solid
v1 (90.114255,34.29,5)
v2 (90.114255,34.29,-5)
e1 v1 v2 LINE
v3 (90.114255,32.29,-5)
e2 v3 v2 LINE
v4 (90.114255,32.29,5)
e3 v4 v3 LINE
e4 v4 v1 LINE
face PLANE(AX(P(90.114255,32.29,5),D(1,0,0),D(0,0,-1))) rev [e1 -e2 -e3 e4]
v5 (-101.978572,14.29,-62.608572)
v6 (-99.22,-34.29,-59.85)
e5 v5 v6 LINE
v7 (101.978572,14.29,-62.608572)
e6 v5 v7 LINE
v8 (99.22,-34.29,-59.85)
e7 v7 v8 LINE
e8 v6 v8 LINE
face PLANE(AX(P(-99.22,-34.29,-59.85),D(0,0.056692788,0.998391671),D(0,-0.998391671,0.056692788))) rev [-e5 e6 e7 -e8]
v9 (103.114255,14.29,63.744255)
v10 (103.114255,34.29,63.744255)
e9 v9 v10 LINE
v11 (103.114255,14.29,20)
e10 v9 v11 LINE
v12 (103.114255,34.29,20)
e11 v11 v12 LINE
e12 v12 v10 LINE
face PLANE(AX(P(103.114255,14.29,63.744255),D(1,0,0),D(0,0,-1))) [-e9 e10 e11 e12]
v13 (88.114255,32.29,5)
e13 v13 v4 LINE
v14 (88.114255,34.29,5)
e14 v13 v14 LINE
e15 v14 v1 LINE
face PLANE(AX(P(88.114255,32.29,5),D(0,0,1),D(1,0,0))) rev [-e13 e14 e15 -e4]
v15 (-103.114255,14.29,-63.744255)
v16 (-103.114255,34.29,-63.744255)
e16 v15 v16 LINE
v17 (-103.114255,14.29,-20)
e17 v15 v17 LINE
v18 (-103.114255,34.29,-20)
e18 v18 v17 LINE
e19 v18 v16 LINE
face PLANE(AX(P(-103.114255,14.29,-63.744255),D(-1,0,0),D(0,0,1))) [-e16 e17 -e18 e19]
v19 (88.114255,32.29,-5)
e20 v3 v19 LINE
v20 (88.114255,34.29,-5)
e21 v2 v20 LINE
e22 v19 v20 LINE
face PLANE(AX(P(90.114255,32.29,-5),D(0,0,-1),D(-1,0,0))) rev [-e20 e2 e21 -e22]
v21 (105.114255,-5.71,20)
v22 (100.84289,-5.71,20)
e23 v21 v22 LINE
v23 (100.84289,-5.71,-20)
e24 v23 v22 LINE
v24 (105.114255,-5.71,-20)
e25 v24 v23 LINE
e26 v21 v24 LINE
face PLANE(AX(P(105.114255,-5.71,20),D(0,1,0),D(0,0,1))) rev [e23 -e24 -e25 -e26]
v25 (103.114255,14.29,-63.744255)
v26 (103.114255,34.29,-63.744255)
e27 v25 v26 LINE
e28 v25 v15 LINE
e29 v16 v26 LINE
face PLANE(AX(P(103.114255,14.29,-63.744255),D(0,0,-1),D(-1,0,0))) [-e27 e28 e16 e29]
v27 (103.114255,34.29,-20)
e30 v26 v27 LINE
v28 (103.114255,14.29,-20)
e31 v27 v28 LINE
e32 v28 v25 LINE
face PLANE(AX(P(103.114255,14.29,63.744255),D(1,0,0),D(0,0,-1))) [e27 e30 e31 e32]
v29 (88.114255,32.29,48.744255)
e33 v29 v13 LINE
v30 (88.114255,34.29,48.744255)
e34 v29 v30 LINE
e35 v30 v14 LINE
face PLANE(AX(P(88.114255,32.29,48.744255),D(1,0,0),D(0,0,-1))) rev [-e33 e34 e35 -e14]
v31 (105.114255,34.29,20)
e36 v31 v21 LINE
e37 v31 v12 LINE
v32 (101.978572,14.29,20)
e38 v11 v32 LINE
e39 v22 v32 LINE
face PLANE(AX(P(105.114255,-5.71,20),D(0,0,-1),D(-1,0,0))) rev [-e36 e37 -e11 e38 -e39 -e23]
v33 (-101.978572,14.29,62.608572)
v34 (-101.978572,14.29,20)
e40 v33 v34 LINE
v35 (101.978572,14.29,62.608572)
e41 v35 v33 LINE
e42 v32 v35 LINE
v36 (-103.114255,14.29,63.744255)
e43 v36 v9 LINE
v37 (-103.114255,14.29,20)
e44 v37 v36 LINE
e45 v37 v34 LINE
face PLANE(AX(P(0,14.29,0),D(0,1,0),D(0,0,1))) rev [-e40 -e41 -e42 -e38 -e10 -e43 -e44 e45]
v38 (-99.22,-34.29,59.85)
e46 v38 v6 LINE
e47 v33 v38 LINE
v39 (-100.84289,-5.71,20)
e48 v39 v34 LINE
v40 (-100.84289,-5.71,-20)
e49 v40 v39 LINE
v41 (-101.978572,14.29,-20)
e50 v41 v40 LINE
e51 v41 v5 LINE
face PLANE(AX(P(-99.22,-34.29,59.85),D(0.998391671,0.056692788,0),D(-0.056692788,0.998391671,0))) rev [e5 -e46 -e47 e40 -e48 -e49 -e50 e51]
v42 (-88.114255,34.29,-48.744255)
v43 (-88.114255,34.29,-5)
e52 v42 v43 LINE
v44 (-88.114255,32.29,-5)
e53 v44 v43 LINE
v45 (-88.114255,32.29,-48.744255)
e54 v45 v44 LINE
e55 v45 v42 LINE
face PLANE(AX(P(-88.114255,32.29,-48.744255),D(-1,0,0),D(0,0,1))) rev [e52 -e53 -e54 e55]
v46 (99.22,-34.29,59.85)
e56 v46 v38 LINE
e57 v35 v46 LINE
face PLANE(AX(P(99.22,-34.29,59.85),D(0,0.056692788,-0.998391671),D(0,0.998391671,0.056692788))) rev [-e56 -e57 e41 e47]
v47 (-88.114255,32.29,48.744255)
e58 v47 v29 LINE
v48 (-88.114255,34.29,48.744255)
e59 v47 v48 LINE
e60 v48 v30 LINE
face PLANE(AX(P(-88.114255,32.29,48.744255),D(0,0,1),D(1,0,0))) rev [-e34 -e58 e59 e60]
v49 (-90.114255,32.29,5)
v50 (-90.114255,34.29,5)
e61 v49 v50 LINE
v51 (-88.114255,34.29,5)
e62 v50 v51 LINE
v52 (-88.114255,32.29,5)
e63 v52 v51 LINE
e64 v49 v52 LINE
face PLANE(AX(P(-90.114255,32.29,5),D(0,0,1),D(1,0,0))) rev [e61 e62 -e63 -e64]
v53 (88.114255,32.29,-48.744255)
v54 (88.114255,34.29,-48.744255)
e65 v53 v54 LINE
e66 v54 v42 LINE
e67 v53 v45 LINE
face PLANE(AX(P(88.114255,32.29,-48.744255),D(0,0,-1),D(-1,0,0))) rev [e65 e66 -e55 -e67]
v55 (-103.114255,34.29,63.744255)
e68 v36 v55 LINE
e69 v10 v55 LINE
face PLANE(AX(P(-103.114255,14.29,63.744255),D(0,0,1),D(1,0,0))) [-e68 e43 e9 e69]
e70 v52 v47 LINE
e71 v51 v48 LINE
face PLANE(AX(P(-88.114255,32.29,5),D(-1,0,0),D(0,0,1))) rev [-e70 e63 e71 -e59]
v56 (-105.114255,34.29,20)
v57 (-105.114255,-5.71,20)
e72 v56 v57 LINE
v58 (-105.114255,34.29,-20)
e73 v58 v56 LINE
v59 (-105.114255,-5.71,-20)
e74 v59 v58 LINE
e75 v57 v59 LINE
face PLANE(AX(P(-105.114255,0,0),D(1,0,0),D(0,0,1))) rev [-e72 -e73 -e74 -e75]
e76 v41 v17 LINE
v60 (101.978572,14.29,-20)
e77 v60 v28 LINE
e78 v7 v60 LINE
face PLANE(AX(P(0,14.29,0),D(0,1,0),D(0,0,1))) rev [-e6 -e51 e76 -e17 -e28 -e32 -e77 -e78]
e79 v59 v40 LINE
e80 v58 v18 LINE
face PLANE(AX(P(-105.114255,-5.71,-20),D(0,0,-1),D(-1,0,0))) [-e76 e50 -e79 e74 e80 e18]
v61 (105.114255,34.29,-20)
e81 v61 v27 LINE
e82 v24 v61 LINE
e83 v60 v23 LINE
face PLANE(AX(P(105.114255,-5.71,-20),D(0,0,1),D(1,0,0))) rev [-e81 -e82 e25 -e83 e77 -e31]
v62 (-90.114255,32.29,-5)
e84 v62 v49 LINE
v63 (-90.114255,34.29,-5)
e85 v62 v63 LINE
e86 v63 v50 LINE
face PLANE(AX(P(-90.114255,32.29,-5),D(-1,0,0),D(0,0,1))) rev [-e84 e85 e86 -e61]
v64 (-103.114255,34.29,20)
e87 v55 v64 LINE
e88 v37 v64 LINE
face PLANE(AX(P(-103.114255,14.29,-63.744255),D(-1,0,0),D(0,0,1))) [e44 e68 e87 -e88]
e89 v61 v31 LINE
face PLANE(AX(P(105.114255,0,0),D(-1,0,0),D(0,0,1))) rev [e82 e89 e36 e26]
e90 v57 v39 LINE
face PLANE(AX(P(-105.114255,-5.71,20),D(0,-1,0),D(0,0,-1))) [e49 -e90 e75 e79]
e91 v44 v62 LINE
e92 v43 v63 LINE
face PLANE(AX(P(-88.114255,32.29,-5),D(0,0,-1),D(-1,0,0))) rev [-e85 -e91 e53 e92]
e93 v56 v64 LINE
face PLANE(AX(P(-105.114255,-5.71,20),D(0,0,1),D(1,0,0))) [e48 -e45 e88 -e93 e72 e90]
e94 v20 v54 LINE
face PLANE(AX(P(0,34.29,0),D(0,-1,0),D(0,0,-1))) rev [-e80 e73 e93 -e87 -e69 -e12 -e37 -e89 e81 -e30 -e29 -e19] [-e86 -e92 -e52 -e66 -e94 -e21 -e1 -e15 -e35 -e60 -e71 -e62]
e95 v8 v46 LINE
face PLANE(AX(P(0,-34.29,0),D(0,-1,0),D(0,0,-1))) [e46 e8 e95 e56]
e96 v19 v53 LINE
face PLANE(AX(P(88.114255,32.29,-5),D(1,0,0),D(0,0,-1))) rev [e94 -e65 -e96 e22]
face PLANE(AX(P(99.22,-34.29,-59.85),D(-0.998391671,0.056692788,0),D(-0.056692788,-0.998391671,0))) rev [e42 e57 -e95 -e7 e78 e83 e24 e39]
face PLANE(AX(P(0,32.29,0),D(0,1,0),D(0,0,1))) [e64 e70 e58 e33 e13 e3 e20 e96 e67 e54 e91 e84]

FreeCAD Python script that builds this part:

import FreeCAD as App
import Part
import Sketcher
from FreeCAD import Vector

doc = App.newDocument("Part")
body = doc.addObject("PartDesign::Body", "Body")

# Sketch on XZ plane
sketch1 = body.newObject("Sketcher::SketchObject", "Sketch")
sketch1.AttachmentSupport = (doc.getObject("XZ_Plane"), [""])
sketch1.MapMode = "FlatFace"
sketch1.addGeometry(Part.LineSegment(Vector(-109, -70, 0), Vector(-109, 70, 0)), False)
sketch1.addGeometry(Part.LineSegment(Vector(-109, 70, 0), Vector(109, 70, 0)), False)
sketch1.addGeometry(Part.LineSegment(Vector(109, 70, 0), Vector(109, -70, 0)), False)
sketch1.addGeometry(Part.LineSegment(Vector(109, -70, 0), Vector(-109, -70, 0)), False)
sketch1.addConstraint(Sketcher.Constraint("Coincident", 0, 2, 1, 1))
sketch1.addConstraint(Sketcher.Constraint("Coincident", 1, 2, 2, 1))
sketch1.addConstraint(Sketcher.Constraint("Coincident", 2, 2, 3, 1))
sketch1.addConstraint(Sketcher.Constraint("Coincident", 3, 2, 0, 1))
sketch1.addConstraint(Sketcher.Constraint("Vertical", 0))
sketch1.addConstraint(Sketcher.Constraint("Horizontal", 1))
sketch1.addConstraint(Sketcher.Constraint("Vertical", 2))
sketch1.addConstraint(Sketcher.Constraint("Horizontal", 3))
sketch1.addConstraint(Sketcher.Constraint("Symmetric", 0, 2, 2, 2, -1, 1))
sketch1.addConstraint(Sketcher.Constraint("DistanceY", 0, 1, 0, 2, 139.7))
sketch1.addConstraint(Sketcher.Constraint("DistanceX", 1, 1, 1, 2, 218.44))
pad1 = body.newObject("PartDesign::Pad", "Pad")
pad1.Profile = sketch1
pad1.Length = 68.58
pad1.Midplane = True

# Sketch on XZ plane
sketch2 = body.newObject("Sketcher::SketchObject", "Sketch001")
sketch2.AttachmentSupport = (doc.getObject("XZ_Plane"), [""])
sketch2.MapMode = "FlatFace"
sketch2.AttachmentOffset = App.Placement(Vector(0, 0, 34.29), App.Rotation())
sketch2.addGeometry(Part.LineSegment(Vector(-119, 80, 0), Vector(-119, -80, 0)), False)
sketch2.addGeometry(Part.LineSegment(Vector(-119, -80, 0), Vector(119, -80, 0)), False)
sketch2.addGeometry(Part.LineSegment(Vector(119, -80, 0), Vector(119, 80, 0)), False)
sketch2.addGeometry(Part.LineSegment(Vector(119, 80, 0), Vector(-119, 80, 0)), False)
sketch2.addGeometry(Part.LineSegment(Vector(99, -60, 0), Vector(-99, -60, 0)), False)
sketch2.addGeometry(Part.LineSegment(Vector(-99, -60, 0), Vector(-99, 60, 0)), False)
sketch2.addGeometry(Part.LineSegment(Vector(-99, 60, 0), Vector(99, 60, 0)), False)
sketch2.addGeometry(Part.LineSegment(Vector(99, 60, 0), Vector(99, -60, 0)), False)
sketch2.addConstraint(Sketcher.Constraint("Coincident", 0, 2, 1, 1))
sketch2.addConstraint(Sketcher.Constraint("Coincident", 1, 2, 2, 1))
sketch2.addConstraint(Sketcher.Constraint("Coincident", 2, 2, 3, 1))
sketch2.addConstraint(Sketcher.Constraint("Coincident", 3, 2, 0, 1))
sketch2.addConstraint(Sketcher.Constraint("Coincident", 4, 2, 5, 1))
sketch2.addConstraint(Sketcher.Constraint("Coincident", 5, 2, 6, 1))
sketch2.addConstraint(Sketcher.Constraint("Coincident", 6, 2, 7, 1))
sketch2.addConstraint(Sketcher.Constraint("Coincident", 7, 2, 4, 1))
sketch2.addConstraint(Sketcher.Constraint("Vertical", 0))
sketch2.addConstraint(Sketcher.Constraint("Horizontal", 1))
sketch2.addConstraint(Sketcher.Constraint("Vertical", 2))
sketch2.addConstraint(Sketcher.Constraint("Horizontal", 3))
sketch2.addConstraint(Sketcher.Constraint("Horizontal", 4))
sketch2.addConstraint(Sketcher.Constraint("Vertical", 5))
sketch2.addConstraint(Sketcher.Constraint("Horizontal", 6))
sketch2.addConstraint(Sketcher.Constraint("Vertical", 7))
sketch2.addConstraint(Sketcher.Constraint("Symmetric", 0, 2, 2, 2, -1, 1))
sketch2.addConstraint(Sketcher.Constraint("Symmetric", 4, 2, 6, 2, -1, 1))
sketch2.addConstraint(Sketcher.Constraint("DistanceY", 0, 2, 0, 1, 159.7))
sketch2.addConstraint(Sketcher.Constraint("DistanceY", 5, 1, 5, 2, 119.7))
sketch2.addConstraint(Sketcher.Constraint("DistanceX", 0, 2, 4, 2, 20.0))
sketch2.addConstraint(Sketcher.Constraint("DistanceX", 1, 1, 1, 2, 238.44))
pocket1 = body.newObject("PartDesign::Pocket", "Pocket")
pocket1.Profile = sketch2
pocket1.Length = 172.72
pocket1.TaperAngle = 3.25

# Sketch on XZ plane
sketch3 = body.newObject("Sketcher::SketchObject", "Sketch002")
sketch3.AttachmentSupport = (doc.getObject("XZ_Plane"), [""])
sketch3.MapMode = "FlatFace"
sketch3.AttachmentOffset = App.Placement(Vector(0, 0, -34.29), App.Rotation())
sketch3.addGeometry(Part.LineSegment(Vector(-103, -64, 0), Vector(-103, 64, 0)), False)
sketch3.addGeometry(Part.LineSegment(Vector(-103, 64, 0), Vector(103, 64, 0)), False)
sketch3.addGeometry(Part.LineSegment(Vector(103, 64, 0), Vector(103, -64, 0)), False)
sketch3.addGeometry(Part.LineSegment(Vector(103, -64, 0), Vector(-103, -64, 0)), False)
sketch3.addConstraint(Sketcher.Constraint("Coincident", 0, 2, 1, 1))
sketch3.addConstraint(Sketcher.Constraint("Coincident", 1, 2, 2, 1))
sketch3.addConstraint(Sketcher.Constraint("Coincident", 2, 2, 3, 1))
sketch3.addConstraint(Sketcher.Constraint("Coincident", 3, 2, 0, 1))
sketch3.addConstraint(Sketcher.Constraint("Vertical", 0))
sketch3.addConstraint(Sketcher.Constraint("Horizontal", 1))
sketch3.addConstraint(Sketcher.Constraint("Vertical", 2))
sketch3.addConstraint(Sketcher.Constraint("Horizontal", 3))
sketch3.addConstraint(Sketcher.Constraint("Symmetric", 0, 2, 2, 2, -1, 1))
sketch3.addConstraint(Sketcher.Constraint("DistanceX", 1, 1, 1, 2, 206.228509))
sketch3.addConstraint(Sketcher.Constraint("DistanceY", 0, 1, 0, 2, 127.488509))
pad2 = body.newObject("PartDesign::Pad", "Pad001")
pad2.Profile = sketch3
pad2.Length = 20

# Sketch on YZ plane
sketch4 = body.newObject("Sketcher::SketchObject", "Sketch003")
sketch4.AttachmentSupport = (doc.getObject("YZ_Plane"), [""])
sketch4.MapMode = "FlatFace"
sketch4.AttachmentOffset = App.Placement(Vector(0, 0, 83.114255), App.Rotation())
sketch4.addGeometry(Part.LineSegment(Vector(34, 20, 0), Vector(-6, 20, 0)), False)
sketch4.addGeometry(Part.LineSegment(Vector(-6, 20, 0), Vector(-6, -20, 0)), False)
sketch4.addGeometry(Part.LineSegment(Vector(-6, -20, 0), Vector(34, -20, 0)), False)
sketch4.addGeometry(Part.LineSegment(Vector(34, -20, 0), Vector(34, 20, 0)), False)
sketch4.addConstraint(Sketcher.Constraint("Coincident", 0, 2, 1, 1))
sketch4.addConstraint(Sketcher.Constraint("Coincident", 1, 2, 2, 1))
sketch4.addConstraint(Sketcher.Constraint("Coincident", 2, 2, 3, 1))
sketch4.addConstraint(Sketcher.Constraint("Coincident", 3, 2, 0, 1))
sketch4.addConstraint(Sketcher.Constraint("Horizontal", 0))
sketch4.addConstraint(Sketcher.Constraint("Vertical", 1))
sketch4.addConstraint(Sketcher.Constraint("Horizontal", 2))
sketch4.addConstraint(Sketcher.Constraint("Vertical", 3))
sketch4.addConstraint(Sketcher.Constraint("Equal", 2, 1))
sketch4.addConstraint(Sketcher.Constraint("DistanceX", 0, 2, 0, 1, 40.0))
sketch4.addConstraint(Sketcher.Constraint("DistanceY", -1, 1, 0, 2, 20.0))
sketch4.addConstraint(Sketcher.Constraint("DistanceX", 0, 2, -1, 1, 5.71))
pad3 = body.newObject("PartDesign::Pad", "Pad002")
pad3.Profile = sketch4
pad3.Length = 22
doc.recompute()

mirrored = body.newObject("PartDesign::Mirrored", "Mirrored")
mirrored.Originals = [pad3]
mirrored.MirrorPlane = (doc.getObject("YZ_Plane"), [""])
body.Tip = mirrored

# Sketch on XZ plane
sketch5 = body.newObject("Sketcher::SketchObject", "Sketch004")
sketch5.AttachmentSupport = (doc.getObject("XZ_Plane"), [""])
sketch5.MapMode = "FlatFace"
sketch5.AttachmentOffset = App.Placement(Vector(0, 0, -34.29), App.Rotation())
sketch5.addGeometry(Part.LineSegment(Vector(-88.1, -48.7, 0), Vector(-88.1, -5, 0)), False)
sketch5.addGeometry(Part.LineSegment(Vector(-88.1, -5, 0), Vector(-90.1, -5, 0)), False)
sketch5.addGeometry(Part.LineSegment(Vector(-90.1, -5, 0), Vector(-90.1, 5, 0)), False)
sketch5.addGeometry(Part.LineSegment(Vector(-90.1, 5, 0), Vector(-88.1, 5, 0)), False)
sketch5.addGeometry(Part.LineSegment(Vector(-88.1, 5, 0), Vector(-88.1, 48.7, 0)), False)
sketch5.addGeometry(Part.LineSegment(Vector(-88.1, 48.7, 0), Vector(88.1, 48.7, 0)), False)
sketch5.addGeometry(Part.LineSegment(Vector(88.1, 48.7, 0), Vector(88.1, 5, 0)), False)
sketch5.addGeometry(Part.LineSegment(Vector(88.1, 5, 0), Vector(90.1, 5, 0)), False)
sketch5.addGeometry(Part.LineSegment(Vector(90.1, 5, 0), Vector(90.1, -5, 0)), False)
sketch5.addGeometry(Part.LineSegment(Vector(90.1, -5, 0), Vector(88.1, -5, 0)), False)
sketch5.addGeometry(Part.LineSegment(Vector(88.1, -5, 0), Vector(88.1, -48.7, 0)), False)
sketch5.addGeometry(Part.LineSegment(Vector(88.1, -48.7, 0), Vector(-88.1, -48.7, 0)), False)
sketch5.addConstraint(Sketcher.Constraint("Coincident", 0, 2, 1, 1))
sketch5.addConstraint(Sketcher.Constraint("Coincident", 1, 2, 2, 1))
sketch5.addConstraint(Sketcher.Constraint("Coincident", 2, 2, 3, 1))
sketch5.addConstraint(Sketcher.Constraint("Coincident", 3, 2, 4, 1))
sketch5.addConstraint(Sketcher.Constraint("Coincident", 4, 2, 5, 1))
sketch5.addConstraint(Sketcher.Constraint("Coincident", 5, 2, 6, 1))
sketch5.addConstraint(Sketcher.Constraint("Coincident", 6, 2, 7, 1))
sketch5.addConstraint(Sketcher.Constraint("Coincident", 7, 2, 8, 1))
sketch5.addConstraint(Sketcher.Constraint("Coincident", 8, 2, 9, 1))
sketch5.addConstraint(Sketcher.Constraint("Coincident", 9, 2, 10, 1))
sketch5.addConstraint(Sketcher.Constraint("Coincident", 10, 2, 11, 1))
sketch5.addConstraint(Sketcher.Constraint("Coincident", 11, 2, 0, 1))
sketch5.addConstraint(Sketcher.Constraint("Vertical", 0))
sketch5.addConstraint(Sketcher.Constraint("Horizontal", 1))
sketch5.addConstraint(Sketcher.Constraint("Vertical", 2))
sketch5.addConstraint(Sketcher.Constraint("Horizontal", 3))
sketch5.addConstraint(Sketcher.Constraint("Vertical", 4))
sketch5.addConstraint(Sketcher.Constraint("Horizontal", 5))
sketch5.addConstraint(Sketcher.Constraint("Vertical", 6))
sketch5.addConstraint(Sketcher.Constraint("Horizontal", 7))
sketch5.addConstraint(Sketcher.Constraint("Vertical", 8))
sketch5.addConstraint(Sketcher.Constraint("Horizontal", 9))
sketch5.addConstraint(Sketcher.Constraint("Vertical", 10))
sketch5.addConstraint(Sketcher.Constraint("Horizontal", 11))
sketch5.addConstraint(Sketcher.Constraint("Symmetric", 0, 2, 6, 2, -1, 1))
sketch5.addConstraint(Sketcher.Constraint("Symmetric", 2, 2, 8, 2, -1, 1))
sketch5.addConstraint(Sketcher.Constraint("Symmetric", 4, 2, 10, 2, -1, 1))
sketch5.addConstraint(Sketcher.Constraint("Symmetric", 3, 2, 6, 2, -2))
sketch5.addConstraint(Sketcher.Constraint("DistanceX", 1, 2, 1, 1, 2.0))
sketch5.addConstraint(Sketcher.Constraint("DistanceY", 2, 1, 2, 2, 10.0))
sketch5.addConstraint(Sketcher.Constraint("DistanceX", 5, 1, 5, 2, 176.228509))
sketch5.addConstraint(Sketcher.Constraint("DistanceY", 0, 1, 0, 2, 43.744255))
pocket2 = body.newObject("PartDesign::Pocket", "Pocket001")
pocket2.Profile = sketch5
pocket2.Length = 2
pocket2.Reversed = True

doc.recompute()
